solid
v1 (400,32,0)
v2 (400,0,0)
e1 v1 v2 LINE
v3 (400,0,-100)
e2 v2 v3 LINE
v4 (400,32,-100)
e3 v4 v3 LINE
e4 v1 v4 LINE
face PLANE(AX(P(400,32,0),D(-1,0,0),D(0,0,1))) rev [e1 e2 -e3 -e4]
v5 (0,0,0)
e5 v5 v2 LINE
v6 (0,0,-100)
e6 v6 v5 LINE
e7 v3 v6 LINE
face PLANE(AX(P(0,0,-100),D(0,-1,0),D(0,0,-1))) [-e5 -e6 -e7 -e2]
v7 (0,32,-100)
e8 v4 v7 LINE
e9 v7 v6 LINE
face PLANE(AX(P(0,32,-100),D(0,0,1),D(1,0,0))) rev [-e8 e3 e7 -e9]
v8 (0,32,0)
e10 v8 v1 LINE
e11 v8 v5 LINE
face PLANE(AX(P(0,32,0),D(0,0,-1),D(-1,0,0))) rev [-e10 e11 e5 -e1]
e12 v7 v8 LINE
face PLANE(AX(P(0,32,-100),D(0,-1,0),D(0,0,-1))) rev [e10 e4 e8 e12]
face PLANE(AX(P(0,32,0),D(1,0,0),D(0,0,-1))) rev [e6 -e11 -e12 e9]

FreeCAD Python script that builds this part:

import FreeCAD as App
import Part
import Sketcher
from FreeCAD import Vector

doc = App.newDocument("Part")
body = doc.addObject("PartDesign::Body", "Body")

sketch1 = body.newObject("Sketcher::SketchObject", "Sketch")
sketch1.AttachmentSupport = (doc.getObject("XZ_Plane"), [""])
sketch1.MapMode = "FlatFace"
sketch1.addGeometry([
    Part.LineSegment(Vector(0, -100, 0), Vector(0, 0, 0)),
    Part.LineSegment(Vector(0, 0, 0), Vector(400, 0, 0)),
    Part.LineSegment(Vector(400, 0, 0), Vector(400, -100, 0)),
    Part.LineSegment(Vector(400, -100, 0), Vector(0, -100, 0)),
], False)
sketch1.addConstraint([
    Sketcher.Constraint("Coincident", 0, 2, 1, 1),
    Sketcher.Constraint("Coincident", 1, 2, 2, 1),
    Sketcher.Constraint("Coincident", 2, 2, 3, 1),
    Sketcher.Constraint("Coincident", 3, 2, 0, 1),
    Sketcher.Constraint("Vertical", 0),
    Sketcher.Constraint("Horizontal", 1),
    Sketcher.Constraint("Vertical", 2),
    Sketcher.Constraint("Horizontal", 3),
    Sketcher.Constraint("Coincident", 0, 2, -1, 1),
    Sketcher.Constraint("DistanceX", 1, 1, 1, 2, 400.0),
    Sketcher.Constraint("DistanceY", 0, 1, 0, 2, 100.0),
])
pad1 = body.newObject("PartDesign::Pad", "Pad")
pad1.Profile = sketch1
pad1.Length = 32
pad1.Reversed = True

doc.recompute()
